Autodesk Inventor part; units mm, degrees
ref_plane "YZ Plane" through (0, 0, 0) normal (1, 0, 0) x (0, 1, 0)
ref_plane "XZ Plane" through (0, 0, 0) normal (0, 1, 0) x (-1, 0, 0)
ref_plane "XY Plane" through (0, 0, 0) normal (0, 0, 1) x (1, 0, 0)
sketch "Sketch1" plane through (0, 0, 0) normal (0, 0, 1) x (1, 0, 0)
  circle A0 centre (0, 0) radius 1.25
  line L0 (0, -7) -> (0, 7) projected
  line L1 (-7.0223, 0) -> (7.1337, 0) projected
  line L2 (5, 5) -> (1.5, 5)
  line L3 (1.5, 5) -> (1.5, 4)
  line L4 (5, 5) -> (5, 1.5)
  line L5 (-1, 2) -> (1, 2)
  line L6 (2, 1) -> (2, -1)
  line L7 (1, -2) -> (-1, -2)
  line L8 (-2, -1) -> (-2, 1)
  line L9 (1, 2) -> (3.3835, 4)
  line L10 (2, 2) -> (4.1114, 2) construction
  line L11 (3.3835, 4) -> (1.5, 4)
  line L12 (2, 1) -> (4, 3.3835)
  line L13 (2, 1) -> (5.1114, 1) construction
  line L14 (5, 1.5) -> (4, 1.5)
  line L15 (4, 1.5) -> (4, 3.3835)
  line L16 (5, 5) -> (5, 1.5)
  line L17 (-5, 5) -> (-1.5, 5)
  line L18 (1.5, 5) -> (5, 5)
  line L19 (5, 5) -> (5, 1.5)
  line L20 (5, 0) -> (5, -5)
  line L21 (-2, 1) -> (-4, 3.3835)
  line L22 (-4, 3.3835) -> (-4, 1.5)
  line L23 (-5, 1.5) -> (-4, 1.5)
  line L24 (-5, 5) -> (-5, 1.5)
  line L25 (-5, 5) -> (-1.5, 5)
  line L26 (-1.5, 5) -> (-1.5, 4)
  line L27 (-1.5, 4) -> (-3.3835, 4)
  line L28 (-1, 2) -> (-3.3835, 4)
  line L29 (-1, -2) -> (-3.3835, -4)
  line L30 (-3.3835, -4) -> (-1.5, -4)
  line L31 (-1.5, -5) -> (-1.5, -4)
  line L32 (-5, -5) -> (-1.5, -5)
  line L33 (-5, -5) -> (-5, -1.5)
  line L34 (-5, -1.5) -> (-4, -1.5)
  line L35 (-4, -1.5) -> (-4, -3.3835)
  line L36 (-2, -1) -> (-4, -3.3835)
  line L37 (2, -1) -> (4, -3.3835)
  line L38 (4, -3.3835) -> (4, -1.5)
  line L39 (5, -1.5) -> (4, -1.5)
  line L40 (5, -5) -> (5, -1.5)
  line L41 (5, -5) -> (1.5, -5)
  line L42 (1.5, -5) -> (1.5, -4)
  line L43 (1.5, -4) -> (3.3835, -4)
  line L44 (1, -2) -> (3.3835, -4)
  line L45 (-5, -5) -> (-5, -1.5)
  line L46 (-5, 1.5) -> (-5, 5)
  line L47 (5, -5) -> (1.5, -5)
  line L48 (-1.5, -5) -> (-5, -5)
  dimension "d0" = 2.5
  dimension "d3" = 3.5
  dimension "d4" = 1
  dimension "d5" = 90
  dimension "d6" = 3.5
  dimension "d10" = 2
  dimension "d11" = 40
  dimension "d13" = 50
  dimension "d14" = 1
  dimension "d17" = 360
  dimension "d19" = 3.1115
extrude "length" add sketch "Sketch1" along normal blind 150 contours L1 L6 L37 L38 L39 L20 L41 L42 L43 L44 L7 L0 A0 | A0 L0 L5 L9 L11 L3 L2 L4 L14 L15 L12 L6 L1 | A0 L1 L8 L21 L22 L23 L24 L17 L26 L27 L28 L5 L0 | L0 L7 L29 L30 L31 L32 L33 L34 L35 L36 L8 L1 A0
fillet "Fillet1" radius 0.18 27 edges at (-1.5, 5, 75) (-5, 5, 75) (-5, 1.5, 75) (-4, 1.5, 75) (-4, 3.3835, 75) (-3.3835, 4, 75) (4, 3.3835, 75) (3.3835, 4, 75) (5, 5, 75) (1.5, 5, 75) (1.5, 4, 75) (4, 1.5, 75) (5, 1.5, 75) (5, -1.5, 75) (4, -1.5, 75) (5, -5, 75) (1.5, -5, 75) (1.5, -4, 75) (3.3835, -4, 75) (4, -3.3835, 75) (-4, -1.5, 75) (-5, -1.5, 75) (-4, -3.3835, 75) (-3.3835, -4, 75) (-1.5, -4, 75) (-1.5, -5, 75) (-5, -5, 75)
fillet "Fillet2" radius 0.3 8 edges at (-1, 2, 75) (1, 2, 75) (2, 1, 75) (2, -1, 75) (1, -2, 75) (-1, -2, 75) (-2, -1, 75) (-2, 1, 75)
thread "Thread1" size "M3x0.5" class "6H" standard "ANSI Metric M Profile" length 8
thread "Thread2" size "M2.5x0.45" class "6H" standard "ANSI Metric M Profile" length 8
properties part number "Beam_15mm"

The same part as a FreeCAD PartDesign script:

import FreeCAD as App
import Part
import Sketcher

V = App.Vector
Q = App.Units.Quantity


def edges_at(feature, points):
    """Names of the edges that pass closest to the given points."""
    edges = feature.Shape.Edges
    near = lambda p: min(range(len(edges)), key=lambda i: edges[i].distToShape(Part.Vertex(*p))[0])
    return sorted({f"Edge{near(p) + 1}" for p in points})


def add_polygon(sketch, points):
    """Adds a closed chain of lines whose ends are joined by coincident constraints."""
    first, n = sketch.GeometryCount, len(points)
    for a, b in zip(points, points[1:] + points[:1]):
        sketch.addGeometry(Part.LineSegment(App.Vector(*a, 0), App.Vector(*b, 0)), False)
    for i in range(n):
        sketch.addConstraint(Sketcher.Constraint("Coincident", first + i, 2, first + (i + 1) % n, 1))

doc = App.newDocument("Part")
body = doc.addObject("PartDesign::Body", "Body")

# Sketch on XY plane
sketch1 = doc.addObject("Sketcher::SketchObject", "Sketch")
body.addObject(sketch1)
sketch1.AttachmentSupport = (doc.XY_Plane, [""])
sketch1.MapMode = "FlatFace"
add_polygon(sketch1, [(2, -1), (2, 1), (4, 3.4), (4, 1.5), (5, 1.5), (5, 5), (1.5, 5), (1.5, 4), (3.4, 4), (1, 2), (-1, 2), (-3.4, 4), (-1.5, 4), (-1.5, 5), (-5, 5), (-5, 1.5), (-4, 1.5), (-4, 3.4), (-2, 1), (-2, -1), (-4, -3.4), (-4, -1.5), (-5, -1.5), (-5, -5), (-1.5, -5), (-1.5, -4), (-3.4, -4), (-1, -2), (1, -2), (3.4, -4), (1.5, -4), (1.5, -5), (5, -5), (5, -1.5), (4, -1.5), (4, -3.4)])  # lines 0-35
sketch1.addGeometry(Part.Circle(V(0, 0, 0), V(0, 0, 1), 1.2), False)  # 36
sketch1.addConstraint(Sketcher.Constraint("Vertical", 0))
sketch1.addConstraint(Sketcher.Constraint("Vertical", 2))
sketch1.addConstraint(Sketcher.Constraint("Horizontal", 3))
sketch1.addConstraint(Sketcher.Constraint("Vertical", 4))
sketch1.addConstraint(Sketcher.Constraint("Horizontal", 5))
sketch1.addConstraint(Sketcher.Constraint("Vertical", 6))
sketch1.addConstraint(Sketcher.Constraint("Horizontal", 7))
sketch1.addConstraint(Sketcher.Constraint("Horizontal", 9))
sketch1.addConstraint(Sketcher.Constraint("Horizontal", 11))
sketch1.addConstraint(Sketcher.Constraint("Vertical", 12))
sketch1.addConstraint(Sketcher.Constraint("Horizontal", 13))
sketch1.addConstraint(Sketcher.Constraint("Vertical", 14))
sketch1.addConstraint(Sketcher.Constraint("Horizontal", 15))
sketch1.addConstraint(Sketcher.Constraint("Vertical", 16))
sketch1.addConstraint(Sketcher.Constraint("Vertical", 18))
sketch1.addConstraint(Sketcher.Constraint("Vertical", 20))
sketch1.addConstraint(Sketcher.Constraint("Horizontal", 21))
sketch1.addConstraint(Sketcher.Constraint("Vertical", 22))
sketch1.addConstraint(Sketcher.Constraint("Horizontal", 23))
sketch1.addConstraint(Sketcher.Constraint("Vertical", 24))
sketch1.addConstraint(Sketcher.Constraint("Horizontal", 25))
sketch1.addConstraint(Sketcher.Constraint("Horizontal", 27))
sketch1.addConstraint(Sketcher.Constraint("Horizontal", 29))
sketch1.addConstraint(Sketcher.Constraint("Vertical", 30))
sketch1.addConstraint(Sketcher.Constraint("Horizontal", 31))
sketch1.addConstraint(Sketcher.Constraint("Vertical", 32))
sketch1.addConstraint(Sketcher.Constraint("Horizontal", 33))
sketch1.addConstraint(Sketcher.Constraint("Vertical", 34))
sketch1.addConstraint(Sketcher.Constraint("Coincident", 36, 3, -1, 1))
sketch1.addConstraint(Sketcher.Constraint("Symmetric", 0, 2, 18, 2, -1, 1))
sketch1.addConstraint(Sketcher.Constraint("Symmetric", 1, 2, 19, 2, -1, 1))
sketch1.addConstraint(Sketcher.Constraint("Symmetric", 3, 2, 21, 2, -1, 1))
sketch1.addConstraint(Sketcher.Constraint("Symmetric", 5, 2, 23, 2, -1, 1))
sketch1.addConstraint(Sketcher.Constraint("Symmetric", 7, 2, 25, 2, -1, 1))
sketch1.addConstraint(Sketcher.Constraint("Symmetric", 8, 2, 26, 2, -1, 1))
sketch1.addConstraint(Sketcher.Constraint("Symmetric", 10, 2, 28, 2, -1, 1))
sketch1.addConstraint(Sketcher.Constraint("Symmetric", 12, 2, 30, 2, -1, 1))
sketch1.addConstraint(Sketcher.Constraint("Symmetric", 14, 2, 32, 2, -1, 1))
sketch1.addConstraint(Sketcher.Constraint("Symmetric", 16, 2, 34, 2, -1, 1))
sketch1.addConstraint(Sketcher.Constraint("Symmetric", 7, 2, 10, 2, -2))
sketch1.addConstraint(Sketcher.Constraint("Symmetric", 5, 2, 12, 2, -2))
sketch1.addConstraint(Sketcher.Constraint("Symmetric", 3, 2, 14, 2, -2))
sketch1.addConstraint(Sketcher.Constraint("Symmetric", 1, 2, 16, 2, -2))
sketch1.addConstraint(Sketcher.Constraint("Perpendicular", 1, 10))
sketch1.addConstraint(Sketcher.Constraint("Perpendicular", 8, 17))
sketch1.addConstraint(Sketcher.Constraint("Perpendicular", 19, 28))
sketch1.addConstraint(Sketcher.Constraint("Perpendicular", 26, 35))
sketch1.addConstraint(Sketcher.Constraint("Horizontal", 0, 2, 17, 2))
sketch1.addConstraint(Sketcher.Constraint("Equal", 27, 0))
sketch1.addConstraint(Sketcher.Constraint("Equal", 29, 2))
sketch1.addConstraint(Sketcher.Constraint("Equal", 31, 4))
sketch1.addConstraint(Sketcher.Constraint("Equal", 33, 6))
sketch1.addConstraint(Sketcher.Constraint("Equal", 1, 8))
sketch1.addConstraint(Sketcher.Constraint("Diameter", 36, Q("2.5 mm")))
sketch1.addConstraint(Sketcher.Constraint("DistanceX", 3, 1, 3, 2, Q("1 mm")))
sketch1.addConstraint(Sketcher.Constraint("DistanceX", 9, 2, 9, 1, Q("2 mm")))
sketch1.addConstraint(Sketcher.Constraint("Angle", 1, Q("50 deg")))
sketch1.addConstraint(Sketcher.Constraint("DistanceX", 5, 2, 5, 1, Q("3.5 mm")))
sketch1.addConstraint(Sketcher.Constraint("DistanceX", -1, 1, 0, 2, Q("2 mm")))
sketch1.addConstraint(Sketcher.Constraint("DistanceX", 0, 2, 1, 2, Q("2 mm")))
pad1 = doc.addObject("PartDesign::Pad", "Pad")
body.addObject(pad1)
pad1.Profile = sketch1
pad1.Length = 150
doc.recompute()

fillet = doc.addObject("PartDesign::Fillet", "Fillet")
body.addObject(fillet)
fillet.Base = (pad1, edges_at(pad1, [
    (-1.5, 5, 75),
    (-5, 5, 75),
    (-5, 1.5, 75),
    (-4, 1.5, 75),
    (-4, 3.384, 75),
    (-3.384, 4, 75),
    (4, 3.384, 75),
    (3.384, 4, 75),
    (5, 5, 75),
    (1.5, 5, 75),
    (1.5, 4, 75),
    (4, 1.5, 75),
    (5, 1.5, 75),
    (5, -1.5, 75),
    (4, -1.5, 75),
    (5, -5, 75),
    (1.5, -5, 75),
    (1.5, -4, 75),
    (3.384, -4, 75),
    (4, -3.384, 75),
    (-4, -1.5, 75),
    (-5, -1.5, 75),
    (-4, -3.384, 75),
    (-3.384, -4, 75),
    (-1.5, -4, 75),
    (-1.5, -5, 75),
    (-5, -5, 75),
]))
fillet.Radius = 0.18
doc.recompute()

fillet2 = doc.addObject("PartDesign::Fillet", "Fillet001")
body.addObject(fillet2)
fillet2.Base = (fillet, edges_at(fillet, [
    (-1, 2, 75),
    (1, 2, 75),
    (2, 1, 75),
    (2, -1, 75),
    (1, -2, 75),
    (-1, -2, 75),
    (-2, -1, 75),
    (-2, 1, 75),
]))
fillet2.Radius = 0.3

doc.recompute()
